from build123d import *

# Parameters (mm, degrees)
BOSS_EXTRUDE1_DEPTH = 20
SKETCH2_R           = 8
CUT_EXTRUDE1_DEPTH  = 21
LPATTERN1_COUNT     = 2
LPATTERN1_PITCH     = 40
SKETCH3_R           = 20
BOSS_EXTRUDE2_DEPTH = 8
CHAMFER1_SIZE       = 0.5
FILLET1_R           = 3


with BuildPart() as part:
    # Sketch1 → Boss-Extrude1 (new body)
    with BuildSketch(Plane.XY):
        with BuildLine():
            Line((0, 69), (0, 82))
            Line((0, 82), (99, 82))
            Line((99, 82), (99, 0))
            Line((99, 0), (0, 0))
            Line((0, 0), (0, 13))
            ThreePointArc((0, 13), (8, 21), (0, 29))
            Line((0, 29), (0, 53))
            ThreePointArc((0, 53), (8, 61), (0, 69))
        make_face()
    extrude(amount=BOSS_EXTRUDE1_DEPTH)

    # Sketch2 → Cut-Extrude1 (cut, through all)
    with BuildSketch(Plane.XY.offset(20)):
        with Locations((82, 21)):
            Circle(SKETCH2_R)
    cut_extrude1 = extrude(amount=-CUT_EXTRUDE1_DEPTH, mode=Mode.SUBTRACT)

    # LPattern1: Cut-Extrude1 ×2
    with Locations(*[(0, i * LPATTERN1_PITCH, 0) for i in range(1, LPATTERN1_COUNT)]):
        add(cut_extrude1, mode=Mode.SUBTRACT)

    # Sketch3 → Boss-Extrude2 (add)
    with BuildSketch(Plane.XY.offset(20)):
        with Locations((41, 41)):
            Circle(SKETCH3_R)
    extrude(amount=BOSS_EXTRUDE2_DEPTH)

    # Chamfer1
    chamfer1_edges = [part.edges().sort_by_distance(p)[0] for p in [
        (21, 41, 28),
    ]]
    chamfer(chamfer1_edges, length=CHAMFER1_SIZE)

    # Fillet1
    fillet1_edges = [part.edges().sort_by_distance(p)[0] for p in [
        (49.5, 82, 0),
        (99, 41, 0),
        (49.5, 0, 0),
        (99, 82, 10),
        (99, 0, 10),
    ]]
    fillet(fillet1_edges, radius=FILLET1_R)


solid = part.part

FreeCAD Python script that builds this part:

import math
import FreeCAD as App
import Part
import Sketcher

V = App.Vector


def edges_at(feature, points):
    """Names of the edges that pass closest to the given points."""
    edges = feature.Shape.Edges
    near = lambda p: min(range(len(edges)), key=lambda i: edges[i].distToShape(Part.Vertex(*p))[0])
    return sorted({f"Edge{near(p) + 1}" for p in points})

doc = App.newDocument("Part")
params = doc.addObject("Spreadsheet::Sheet", "Params")
for row, (alias, value) in enumerate([
    ("sketch1_radius", "8 mm"),
    ("sketch1_width", "99 mm"),
    ("sketch1_height", "13 mm"),
    ("sketch1_height2", "24 mm"),
    ("pad1_length", "20 mm"),
    ("sketch2_diameter", "16 mm"),
    ("linearpattern_pitch", "40 mm"),
    ("sketch3_diameter", "40 mm"),
    ("pad2_length", "8 mm"),
    ("chamfer_size", "0.5 mm"),
    ("fillet_radius", "3 mm"),
], start=1):
    params.set(f"A{row}", alias)
    params.set(f"B{row}", "=" + value)
    params.setAlias(f"B{row}", alias)

body = doc.addObject("PartDesign::Body", "Body")

# Sketch on XY plane
sketch1 = body.newObject("Sketcher::SketchObject", "Sketch")
sketch1.AttachmentSupport = (doc.getObject("XY_Plane"), [""])
sketch1.MapMode = "FlatFace"
sketch1.addGeometry([
    Part.LineSegment(V(0, 82, 0), V(0, 69, 0)),  # 0
    Part.ArcOfCircle(Part.Circle(V(0, 61, 0), V(0, 0, 1), 8), math.radians(-90), math.radians(90)),  # 1
    Part.LineSegment(V(0, 53, 0), V(0, 29, 0)),  # 2
    Part.ArcOfCircle(Part.Circle(V(0, 21, 0), V(0, 0, 1), 8), math.radians(-90), math.radians(90)),  # 3
    Part.LineSegment(V(0, 13, 0), V(0, 0, 0)),  # 4
    Part.LineSegment(V(0, 0, 0), V(99, 0, 0)),  # 5
    Part.LineSegment(V(99, 0, 0), V(99, 82, 0)),  # 6
    Part.LineSegment(V(99, 82, 0), V(0, 82, 0)),  # 7
], False)
sketch1.addConstraint([
    Sketcher.Constraint("Coincident", 0, 2, 1, 2),
    Sketcher.Constraint("Coincident", 1, 1, 2, 1),
    Sketcher.Constraint("Coincident", 2, 2, 3, 2),
    Sketcher.Constraint("Coincident", 3, 1, 4, 1),
    Sketcher.Constraint("Coincident", 4, 2, 5, 1),
    Sketcher.Constraint("Coincident", 5, 2, 6, 1),
    Sketcher.Constraint("Coincident", 6, 2, 7, 1),
    Sketcher.Constraint("Coincident", 7, 2, 0, 1),
    Sketcher.Constraint("Vertical", 0),
    Sketcher.Constraint("Vertical", 2),
    Sketcher.Constraint("Vertical", 4),
    Sketcher.Constraint("Horizontal", 5),
    Sketcher.Constraint("Vertical", 6),
    Sketcher.Constraint("Horizontal", 7),
    Sketcher.Constraint("Coincident", 4, 2, -1, 1),
    Sketcher.Constraint("Equal", 1, 3),
    Sketcher.Constraint("PointOnObject", 1, 3, -2),
    Sketcher.Constraint("PointOnObject", 3, 3, -2),
    Sketcher.Constraint("PointOnObject", 0, 2, -2),
    Sketcher.Constraint("PointOnObject", 1, 1, -2),
    Sketcher.Constraint("Equal", 0, 4),
    Sketcher.Constraint("Radius", 1, 8.0),
    Sketcher.Constraint("DistanceX", 5, 1, 5, 2, 99.0),
    Sketcher.Constraint("DistanceY", 0, 2, 0, 1, 13.0),
    Sketcher.Constraint("DistanceY", 2, 2, 2, 1, 24.0),
])
sketch1.setExpression("Constraints[21]", "Params.sketch1_radius")
sketch1.setExpression("Constraints[22]", "Params.sketch1_width")
sketch1.setExpression("Constraints[23]", "Params.sketch1_height")
sketch1.setExpression("Constraints[24]", "Params.sketch1_height2")
pad1 = body.newObject("PartDesign::Pad", "Pad")
pad1.Profile = sketch1
pad1.setExpression("Length", "Params.pad1_length")

# Sketch on XY plane
sketch2 = body.newObject("Sketcher::SketchObject", "Sketch001")
sketch2.AttachmentSupport = (doc.getObject("XY_Plane"), [""])
sketch2.MapMode = "FlatFace"
sketch2.AttachmentOffset = App.Placement(V(0, 0, 20), App.Rotation())
sketch2.addGeometry(Part.Circle(V(82, 21, 0), V(0, 0, 1), 8), False)
sketch2.addConstraint([
    Sketcher.Constraint("Diameter", 0, 16.0),
    Sketcher.Constraint("DistanceX", -1, 1, 0, 3, 82.0),
    Sketcher.Constraint("DistanceY", -1, 1, 0, 3, 21.0),
])
sketch2.setExpression("Constraints[0]", "Params.sketch2_diameter")
pocket1 = body.newObject("PartDesign::Pocket", "Pocket")
pocket1.Profile = sketch2
pocket1.Type = "ThroughAll"
doc.recompute()

linearpattern = body.newObject("PartDesign::LinearPattern", "LinearPattern")
linearpattern.Originals = [pocket1]
linearpattern.Direction = (doc.getObject("Y_Axis"), [""])
linearpattern.Mode = "offset"
linearpattern.setExpression("Offset", "Params.linearpattern_pitch")
linearpattern.Occurrences = 2
body.Tip = linearpattern

# Sketch on XY plane
sketch3 = body.newObject("Sketcher::SketchObject", "Sketch002")
sketch3.AttachmentSupport = (doc.getObject("XY_Plane"), [""])
sketch3.MapMode = "FlatFace"
sketch3.AttachmentOffset = App.Placement(V(0, 0, 20), App.Rotation())
sketch3.addGeometry(Part.Circle(V(41, 41, 0), V(0, 0, 1), 20), False)
sketch3.addConstraint([
    Sketcher.Constraint("Diameter", 0, 40.0),
    Sketcher.Constraint("DistanceX", -1, 1, 0, 3, 41.0),
    Sketcher.Constraint("DistanceY", -1, 1, 0, 3, 41.0),
])
sketch3.setExpression("Constraints[0]", "Params.sketch3_diameter")
pad2 = body.newObject("PartDesign::Pad", "Pad001")
pad2.Profile = sketch3
pad2.setExpression("Length", "Params.pad2_length")
doc.recompute()

chamfer = body.newObject("PartDesign::Chamfer", "Chamfer")
chamfer.Base = (pad2, edges_at(pad2, [(21, 41, 28)]))
chamfer.setExpression("Size", "Params.chamfer_size")
doc.recompute()

fillet = body.newObject("PartDesign::Fillet", "Fillet")
fillet.Base = (chamfer, edges_at(chamfer, [
    (49.5, 82, 0),
    (99, 41, 0),
    (49.5, 0, 0),
    (99, 82, 10),
    (99, 0, 10),
]))
fillet.setExpression("Radius", "Params.fillet_radius")

doc.recompute()
